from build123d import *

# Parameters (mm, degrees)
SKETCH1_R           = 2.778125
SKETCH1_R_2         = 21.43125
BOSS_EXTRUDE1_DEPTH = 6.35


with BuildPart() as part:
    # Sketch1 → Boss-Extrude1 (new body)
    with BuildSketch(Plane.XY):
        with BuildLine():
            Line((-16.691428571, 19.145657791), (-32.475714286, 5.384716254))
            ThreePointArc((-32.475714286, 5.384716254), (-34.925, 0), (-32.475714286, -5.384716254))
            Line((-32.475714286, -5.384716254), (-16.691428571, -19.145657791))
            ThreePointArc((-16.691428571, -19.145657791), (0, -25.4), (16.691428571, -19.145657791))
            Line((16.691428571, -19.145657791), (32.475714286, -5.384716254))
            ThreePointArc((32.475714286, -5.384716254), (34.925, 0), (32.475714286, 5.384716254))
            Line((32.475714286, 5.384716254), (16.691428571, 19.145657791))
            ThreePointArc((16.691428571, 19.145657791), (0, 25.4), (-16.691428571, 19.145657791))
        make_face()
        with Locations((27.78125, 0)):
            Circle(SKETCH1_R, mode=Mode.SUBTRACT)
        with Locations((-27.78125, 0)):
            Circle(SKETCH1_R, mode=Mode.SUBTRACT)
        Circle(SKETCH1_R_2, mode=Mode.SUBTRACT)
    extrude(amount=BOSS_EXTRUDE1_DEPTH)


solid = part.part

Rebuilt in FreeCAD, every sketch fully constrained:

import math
import FreeCAD as App
import Part
import Sketcher
from FreeCAD import Vector
Q = App.Units.Quantity

doc = App.newDocument("Part")
body = doc.addObject("PartDesign::Body", "Body")

# Sketch on XY plane
sketch1 = body.newObject("Sketcher::SketchObject", "Sketch")
sketch1.AttachmentSupport = (doc.getObject("XY_Plane"), [""])
sketch1.MapMode = "FlatFace"
sketch1.addGeometry(Part.LineSegment(Vector(-16.7, 19.1, 0), Vector(-32.5, 5.4, 0)), False)
sketch1.addGeometry(Part.ArcOfCircle(Part.Circle(Vector(-27.8, 0, 0), Vector(0, 0, 1), 7.1), math.radians(131), math.radians(229)), False)
sketch1.addGeometry(Part.LineSegment(Vector(-32.5, -5.4, 0), Vector(-16.7, -19.1, 0)), False)
sketch1.addGeometry(Part.ArcOfCircle(Part.Circle(Vector(0, 0, 0), Vector(0, 0, 1), 25.4), math.radians(-131), math.radians(-49)), False)
sketch1.addGeometry(Part.LineSegment(Vector(16.7, -19.1, 0), Vector(32.5, -5.4, 0)), False)
sketch1.addGeometry(Part.ArcOfCircle(Part.Circle(Vector(27.8, 0, 0), Vector(0, 0, 1), 7.1), math.radians(-49), math.radians(49)), False)
sketch1.addGeometry(Part.LineSegment(Vector(32.5, 5.4, 0), Vector(16.7, 19.1, 0)), False)
sketch1.addGeometry(Part.ArcOfCircle(Part.Circle(Vector(0, 0, 0), Vector(0, 0, 1), 25.4), math.radians(49), math.radians(131)), False)
sketch1.addGeometry(Part.Circle(Vector(-27.8, 0, 0), Vector(0, 0, 1), 2.8), False)
sketch1.addGeometry(Part.Circle(Vector(0, 0, 0), Vector(0, 0, 1), 21.4), False)
sketch1.addGeometry(Part.Circle(Vector(27.8, 0, 0), Vector(0, 0, 1), 2.8), False)
sketch1.addConstraint(Sketcher.Constraint("Tangent", 0, 2, 1, 1))
sketch1.addConstraint(Sketcher.Constraint("Tangent", 1, 2, 2, 1))
sketch1.addConstraint(Sketcher.Constraint("Tangent", 2, 2, 3, 1))
sketch1.addConstraint(Sketcher.Constraint("Tangent", 3, 2, 4, 1))
sketch1.addConstraint(Sketcher.Constraint("Tangent", 4, 2, 5, 1))
sketch1.addConstraint(Sketcher.Constraint("Tangent", 5, 2, 6, 1))
sketch1.addConstraint(Sketcher.Constraint("Tangent", 6, 2, 7, 1))
sketch1.addConstraint(Sketcher.Constraint("Tangent", 7, 2, 0, 1))
sketch1.addConstraint(Sketcher.Constraint("Coincident", 3, 3, -1, 1))
sketch1.addConstraint(Sketcher.Constraint("Coincident", 7, 3, -1, 1))
sketch1.addConstraint(Sketcher.Constraint("Coincident", 9, 3, -1, 1))
sketch1.addConstraint(Sketcher.Constraint("Coincident", 8, 3, 1, 3))
sketch1.addConstraint(Sketcher.Constraint("Coincident", 10, 3, 5, 3))
sketch1.addConstraint(Sketcher.Constraint("Equal", 1, 5))
sketch1.addConstraint(Sketcher.Constraint("Equal", 3, 7))
sketch1.addConstraint(Sketcher.Constraint("Equal", 8, 10))
sketch1.addConstraint(Sketcher.Constraint("Symmetric", 1, 3, 5, 3, -1, 1))
sketch1.addConstraint(Sketcher.Constraint("PointOnObject", 1, 3, -1))
sketch1.addConstraint(Sketcher.Constraint("Radius", 3, Q("1 in")))
sketch1.addConstraint(Sketcher.Constraint("Diameter", 8, Q("0.21875 in")))
sketch1.addConstraint(Sketcher.Constraint("Diameter", 9, Q("1.6875 in")))
sketch1.addConstraint(Sketcher.Constraint("Radius", 1, Q("0.28125 in")))
sketch1.addConstraint(Sketcher.Constraint("DistanceX", 1, 3, -1, 1, Q("1.09375 in")))
pad1 = body.newObject("PartDesign::Pad", "Pad")
pad1.Profile = sketch1
pad1.Length = Q("0.25 in")

doc.recompute()
